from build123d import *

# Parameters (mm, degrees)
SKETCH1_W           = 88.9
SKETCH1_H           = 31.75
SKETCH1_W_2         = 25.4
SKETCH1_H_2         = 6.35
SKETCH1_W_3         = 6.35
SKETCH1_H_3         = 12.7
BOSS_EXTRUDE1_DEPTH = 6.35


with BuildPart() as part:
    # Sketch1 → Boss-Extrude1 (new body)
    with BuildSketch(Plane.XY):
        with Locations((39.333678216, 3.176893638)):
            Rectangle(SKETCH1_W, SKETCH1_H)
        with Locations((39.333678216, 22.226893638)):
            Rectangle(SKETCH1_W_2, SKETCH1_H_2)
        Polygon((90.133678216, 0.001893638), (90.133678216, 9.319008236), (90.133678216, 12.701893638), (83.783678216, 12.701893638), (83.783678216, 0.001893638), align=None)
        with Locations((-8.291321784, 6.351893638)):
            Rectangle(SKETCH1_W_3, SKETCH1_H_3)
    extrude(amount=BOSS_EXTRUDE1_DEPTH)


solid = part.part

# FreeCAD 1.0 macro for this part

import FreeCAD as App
import Part
import Sketcher
from FreeCAD import Vector
Q = App.Units.Quantity

doc = App.newDocument("Part")
body = doc.addObject("PartDesign::Body", "Body")

# Sketch on XY plane
sketch1 = body.newObject("Sketcher::SketchObject", "Sketch")
sketch1.AttachmentSupport = (doc.getObject("XY_Plane"), [""])
sketch1.MapMode = "FlatFace"
sketch1.addGeometry(Part.LineSegment(Vector(-5.116322, 0.001894, 0), Vector(-5.116322, -12.698106, 0)), False)
sketch1.addGeometry(Part.LineSegment(Vector(-5.116322, -12.698106, 0), Vector(83.783678, -12.698106, 0)), False)
sketch1.addGeometry(Part.LineSegment(Vector(83.783678, -12.698106, 0), Vector(83.783678, 0.001894, 0)), False)
sketch1.addGeometry(Part.LineSegment(Vector(83.783678, 0.001894, 0), Vector(90.133678, 0.001894, 0)), False)
sketch1.addGeometry(Part.LineSegment(Vector(90.133678, 0.001894, 0), Vector(90.133678, 12.701894, 0)), False)
sketch1.addGeometry(Part.LineSegment(Vector(90.133678, 12.701894, 0), Vector(83.783678, 12.701894, 0)), False)
sketch1.addGeometry(Part.LineSegment(Vector(83.783678, 12.701894, 0), Vector(83.783678, 19.051894, 0)), False)
sketch1.addGeometry(Part.LineSegment(Vector(83.783678, 19.051894, 0), Vector(52.033678, 19.051894, 0)), False)
sketch1.addGeometry(Part.LineSegment(Vector(52.033678, 19.051894, 0), Vector(52.033678, 25.401894, 0)), False)
sketch1.addGeometry(Part.LineSegment(Vector(52.033678, 25.401894, 0), Vector(26.633678, 25.401894, 0)), False)
sketch1.addGeometry(Part.LineSegment(Vector(26.633678, 25.401894, 0), Vector(26.633678, 19.051894, 0)), False)
sketch1.addGeometry(Part.LineSegment(Vector(26.633678, 19.051894, 0), Vector(-5.116322, 19.051894, 0)), False)
sketch1.addGeometry(Part.LineSegment(Vector(-5.116322, 19.051894, 0), Vector(-5.116322, 12.701894, 0)), False)
sketch1.addGeometry(Part.LineSegment(Vector(-5.116322, 12.701894, 0), Vector(-11.466322, 12.701894, 0)), False)
sketch1.addGeometry(Part.LineSegment(Vector(-11.466322, 12.701894, 0), Vector(-11.466322, 0.001894, 0)), False)
sketch1.addGeometry(Part.LineSegment(Vector(-11.466322, 0.001894, 0), Vector(-5.116322, 0.001894, 0)), False)
sketch1.addConstraint(Sketcher.Constraint("Coincident", 0, 2, 1, 1))
sketch1.addConstraint(Sketcher.Constraint("Coincident", 1, 2, 2, 1))
sketch1.addConstraint(Sketcher.Constraint("Coincident", 2, 2, 3, 1))
sketch1.addConstraint(Sketcher.Constraint("Coincident", 3, 2, 4, 1))
sketch1.addConstraint(Sketcher.Constraint("Coincident", 4, 2, 5, 1))
sketch1.addConstraint(Sketcher.Constraint("Coincident", 5, 2, 6, 1))
sketch1.addConstraint(Sketcher.Constraint("Coincident", 6, 2, 7, 1))
sketch1.addConstraint(Sketcher.Constraint("Coincident", 7, 2, 8, 1))
sketch1.addConstraint(Sketcher.Constraint("Coincident", 8, 2, 9, 1))
sketch1.addConstraint(Sketcher.Constraint("Coincident", 9, 2, 10, 1))
sketch1.addConstraint(Sketcher.Constraint("Coincident", 10, 2, 11, 1))
sketch1.addConstraint(Sketcher.Constraint("Coincident", 11, 2, 12, 1))
sketch1.addConstraint(Sketcher.Constraint("Coincident", 12, 2, 13, 1))
sketch1.addConstraint(Sketcher.Constraint("Coincident", 13, 2, 14, 1))
sketch1.addConstraint(Sketcher.Constraint("Coincident", 14, 2, 15, 1))
sketch1.addConstraint(Sketcher.Constraint("Coincident", 15, 2, 0, 1))
sketch1.addConstraint(Sketcher.Constraint("Vertical", 0))
sketch1.addConstraint(Sketcher.Constraint("Horizontal", 1))
sketch1.addConstraint(Sketcher.Constraint("Vertical", 2))
sketch1.addConstraint(Sketcher.Constraint("Horizontal", 3))
sketch1.addConstraint(Sketcher.Constraint("Vertical", 4))
sketch1.addConstraint(Sketcher.Constraint("Horizontal", 5))
sketch1.addConstraint(Sketcher.Constraint("Vertical", 6))
sketch1.addConstraint(Sketcher.Constraint("Horizontal", 7))
sketch1.addConstraint(Sketcher.Constraint("Vertical", 8))
sketch1.addConstraint(Sketcher.Constraint("Horizontal", 9))
sketch1.addConstraint(Sketcher.Constraint("Vertical", 10))
sketch1.addConstraint(Sketcher.Constraint("Horizontal", 11))
sketch1.addConstraint(Sketcher.Constraint("Vertical", 12))
sketch1.addConstraint(Sketcher.Constraint("Horizontal", 13))
sketch1.addConstraint(Sketcher.Constraint("Vertical", 14))
sketch1.addConstraint(Sketcher.Constraint("Horizontal", 15))
sketch1.addConstraint(Sketcher.Constraint("Horizontal", 7, 2, 10, 2))
sketch1.addConstraint(Sketcher.Constraint("Horizontal", 5, 2, 12, 2))
sketch1.addConstraint(Sketcher.Constraint("Horizontal", 3, 2, 14, 2))
sketch1.addConstraint(Sketcher.Constraint("Vertical", 2, 2, 5, 2))
sketch1.addConstraint(Sketcher.Constraint("Vertical", 0, 2, 11, 2))
sketch1.addConstraint(Sketcher.Constraint("Equal", 7, 11))
sketch1.addConstraint(Sketcher.Constraint("Equal", 5, 13))
sketch1.addConstraint(Sketcher.Constraint("Equal", 2, 4))
sketch1.addConstraint(Sketcher.Constraint("Equal", 15, 6))
sketch1.addConstraint(Sketcher.Constraint("Equal", 6, 8))
sketch1.addConstraint(Sketcher.Constraint("DistanceX", 9, 2, 9, 1, Q("1 in")))
sketch1.addConstraint(Sketcher.Constraint("DistanceX", 1, 1, 1, 2, Q("3.5 in")))
sketch1.addConstraint(Sketcher.Constraint("DistanceY", 0, 2, 0, 1, Q("0.5 in")))
sketch1.addConstraint(Sketcher.Constraint("DistanceY", 2, 2, 8, 2, Q("1 in")))
sketch1.addConstraint(Sketcher.Constraint("DistanceX", 0, 2, -1, 1, 5.116322))
sketch1.addConstraint(Sketcher.Constraint("DistanceY", 0, 2, -1, 1, 12.698106))
pad1 = body.newObject("PartDesign::Pad", "Pad")
pad1.Profile = sketch1
pad1.Length = Q("0.25 in")

doc.recompute()
